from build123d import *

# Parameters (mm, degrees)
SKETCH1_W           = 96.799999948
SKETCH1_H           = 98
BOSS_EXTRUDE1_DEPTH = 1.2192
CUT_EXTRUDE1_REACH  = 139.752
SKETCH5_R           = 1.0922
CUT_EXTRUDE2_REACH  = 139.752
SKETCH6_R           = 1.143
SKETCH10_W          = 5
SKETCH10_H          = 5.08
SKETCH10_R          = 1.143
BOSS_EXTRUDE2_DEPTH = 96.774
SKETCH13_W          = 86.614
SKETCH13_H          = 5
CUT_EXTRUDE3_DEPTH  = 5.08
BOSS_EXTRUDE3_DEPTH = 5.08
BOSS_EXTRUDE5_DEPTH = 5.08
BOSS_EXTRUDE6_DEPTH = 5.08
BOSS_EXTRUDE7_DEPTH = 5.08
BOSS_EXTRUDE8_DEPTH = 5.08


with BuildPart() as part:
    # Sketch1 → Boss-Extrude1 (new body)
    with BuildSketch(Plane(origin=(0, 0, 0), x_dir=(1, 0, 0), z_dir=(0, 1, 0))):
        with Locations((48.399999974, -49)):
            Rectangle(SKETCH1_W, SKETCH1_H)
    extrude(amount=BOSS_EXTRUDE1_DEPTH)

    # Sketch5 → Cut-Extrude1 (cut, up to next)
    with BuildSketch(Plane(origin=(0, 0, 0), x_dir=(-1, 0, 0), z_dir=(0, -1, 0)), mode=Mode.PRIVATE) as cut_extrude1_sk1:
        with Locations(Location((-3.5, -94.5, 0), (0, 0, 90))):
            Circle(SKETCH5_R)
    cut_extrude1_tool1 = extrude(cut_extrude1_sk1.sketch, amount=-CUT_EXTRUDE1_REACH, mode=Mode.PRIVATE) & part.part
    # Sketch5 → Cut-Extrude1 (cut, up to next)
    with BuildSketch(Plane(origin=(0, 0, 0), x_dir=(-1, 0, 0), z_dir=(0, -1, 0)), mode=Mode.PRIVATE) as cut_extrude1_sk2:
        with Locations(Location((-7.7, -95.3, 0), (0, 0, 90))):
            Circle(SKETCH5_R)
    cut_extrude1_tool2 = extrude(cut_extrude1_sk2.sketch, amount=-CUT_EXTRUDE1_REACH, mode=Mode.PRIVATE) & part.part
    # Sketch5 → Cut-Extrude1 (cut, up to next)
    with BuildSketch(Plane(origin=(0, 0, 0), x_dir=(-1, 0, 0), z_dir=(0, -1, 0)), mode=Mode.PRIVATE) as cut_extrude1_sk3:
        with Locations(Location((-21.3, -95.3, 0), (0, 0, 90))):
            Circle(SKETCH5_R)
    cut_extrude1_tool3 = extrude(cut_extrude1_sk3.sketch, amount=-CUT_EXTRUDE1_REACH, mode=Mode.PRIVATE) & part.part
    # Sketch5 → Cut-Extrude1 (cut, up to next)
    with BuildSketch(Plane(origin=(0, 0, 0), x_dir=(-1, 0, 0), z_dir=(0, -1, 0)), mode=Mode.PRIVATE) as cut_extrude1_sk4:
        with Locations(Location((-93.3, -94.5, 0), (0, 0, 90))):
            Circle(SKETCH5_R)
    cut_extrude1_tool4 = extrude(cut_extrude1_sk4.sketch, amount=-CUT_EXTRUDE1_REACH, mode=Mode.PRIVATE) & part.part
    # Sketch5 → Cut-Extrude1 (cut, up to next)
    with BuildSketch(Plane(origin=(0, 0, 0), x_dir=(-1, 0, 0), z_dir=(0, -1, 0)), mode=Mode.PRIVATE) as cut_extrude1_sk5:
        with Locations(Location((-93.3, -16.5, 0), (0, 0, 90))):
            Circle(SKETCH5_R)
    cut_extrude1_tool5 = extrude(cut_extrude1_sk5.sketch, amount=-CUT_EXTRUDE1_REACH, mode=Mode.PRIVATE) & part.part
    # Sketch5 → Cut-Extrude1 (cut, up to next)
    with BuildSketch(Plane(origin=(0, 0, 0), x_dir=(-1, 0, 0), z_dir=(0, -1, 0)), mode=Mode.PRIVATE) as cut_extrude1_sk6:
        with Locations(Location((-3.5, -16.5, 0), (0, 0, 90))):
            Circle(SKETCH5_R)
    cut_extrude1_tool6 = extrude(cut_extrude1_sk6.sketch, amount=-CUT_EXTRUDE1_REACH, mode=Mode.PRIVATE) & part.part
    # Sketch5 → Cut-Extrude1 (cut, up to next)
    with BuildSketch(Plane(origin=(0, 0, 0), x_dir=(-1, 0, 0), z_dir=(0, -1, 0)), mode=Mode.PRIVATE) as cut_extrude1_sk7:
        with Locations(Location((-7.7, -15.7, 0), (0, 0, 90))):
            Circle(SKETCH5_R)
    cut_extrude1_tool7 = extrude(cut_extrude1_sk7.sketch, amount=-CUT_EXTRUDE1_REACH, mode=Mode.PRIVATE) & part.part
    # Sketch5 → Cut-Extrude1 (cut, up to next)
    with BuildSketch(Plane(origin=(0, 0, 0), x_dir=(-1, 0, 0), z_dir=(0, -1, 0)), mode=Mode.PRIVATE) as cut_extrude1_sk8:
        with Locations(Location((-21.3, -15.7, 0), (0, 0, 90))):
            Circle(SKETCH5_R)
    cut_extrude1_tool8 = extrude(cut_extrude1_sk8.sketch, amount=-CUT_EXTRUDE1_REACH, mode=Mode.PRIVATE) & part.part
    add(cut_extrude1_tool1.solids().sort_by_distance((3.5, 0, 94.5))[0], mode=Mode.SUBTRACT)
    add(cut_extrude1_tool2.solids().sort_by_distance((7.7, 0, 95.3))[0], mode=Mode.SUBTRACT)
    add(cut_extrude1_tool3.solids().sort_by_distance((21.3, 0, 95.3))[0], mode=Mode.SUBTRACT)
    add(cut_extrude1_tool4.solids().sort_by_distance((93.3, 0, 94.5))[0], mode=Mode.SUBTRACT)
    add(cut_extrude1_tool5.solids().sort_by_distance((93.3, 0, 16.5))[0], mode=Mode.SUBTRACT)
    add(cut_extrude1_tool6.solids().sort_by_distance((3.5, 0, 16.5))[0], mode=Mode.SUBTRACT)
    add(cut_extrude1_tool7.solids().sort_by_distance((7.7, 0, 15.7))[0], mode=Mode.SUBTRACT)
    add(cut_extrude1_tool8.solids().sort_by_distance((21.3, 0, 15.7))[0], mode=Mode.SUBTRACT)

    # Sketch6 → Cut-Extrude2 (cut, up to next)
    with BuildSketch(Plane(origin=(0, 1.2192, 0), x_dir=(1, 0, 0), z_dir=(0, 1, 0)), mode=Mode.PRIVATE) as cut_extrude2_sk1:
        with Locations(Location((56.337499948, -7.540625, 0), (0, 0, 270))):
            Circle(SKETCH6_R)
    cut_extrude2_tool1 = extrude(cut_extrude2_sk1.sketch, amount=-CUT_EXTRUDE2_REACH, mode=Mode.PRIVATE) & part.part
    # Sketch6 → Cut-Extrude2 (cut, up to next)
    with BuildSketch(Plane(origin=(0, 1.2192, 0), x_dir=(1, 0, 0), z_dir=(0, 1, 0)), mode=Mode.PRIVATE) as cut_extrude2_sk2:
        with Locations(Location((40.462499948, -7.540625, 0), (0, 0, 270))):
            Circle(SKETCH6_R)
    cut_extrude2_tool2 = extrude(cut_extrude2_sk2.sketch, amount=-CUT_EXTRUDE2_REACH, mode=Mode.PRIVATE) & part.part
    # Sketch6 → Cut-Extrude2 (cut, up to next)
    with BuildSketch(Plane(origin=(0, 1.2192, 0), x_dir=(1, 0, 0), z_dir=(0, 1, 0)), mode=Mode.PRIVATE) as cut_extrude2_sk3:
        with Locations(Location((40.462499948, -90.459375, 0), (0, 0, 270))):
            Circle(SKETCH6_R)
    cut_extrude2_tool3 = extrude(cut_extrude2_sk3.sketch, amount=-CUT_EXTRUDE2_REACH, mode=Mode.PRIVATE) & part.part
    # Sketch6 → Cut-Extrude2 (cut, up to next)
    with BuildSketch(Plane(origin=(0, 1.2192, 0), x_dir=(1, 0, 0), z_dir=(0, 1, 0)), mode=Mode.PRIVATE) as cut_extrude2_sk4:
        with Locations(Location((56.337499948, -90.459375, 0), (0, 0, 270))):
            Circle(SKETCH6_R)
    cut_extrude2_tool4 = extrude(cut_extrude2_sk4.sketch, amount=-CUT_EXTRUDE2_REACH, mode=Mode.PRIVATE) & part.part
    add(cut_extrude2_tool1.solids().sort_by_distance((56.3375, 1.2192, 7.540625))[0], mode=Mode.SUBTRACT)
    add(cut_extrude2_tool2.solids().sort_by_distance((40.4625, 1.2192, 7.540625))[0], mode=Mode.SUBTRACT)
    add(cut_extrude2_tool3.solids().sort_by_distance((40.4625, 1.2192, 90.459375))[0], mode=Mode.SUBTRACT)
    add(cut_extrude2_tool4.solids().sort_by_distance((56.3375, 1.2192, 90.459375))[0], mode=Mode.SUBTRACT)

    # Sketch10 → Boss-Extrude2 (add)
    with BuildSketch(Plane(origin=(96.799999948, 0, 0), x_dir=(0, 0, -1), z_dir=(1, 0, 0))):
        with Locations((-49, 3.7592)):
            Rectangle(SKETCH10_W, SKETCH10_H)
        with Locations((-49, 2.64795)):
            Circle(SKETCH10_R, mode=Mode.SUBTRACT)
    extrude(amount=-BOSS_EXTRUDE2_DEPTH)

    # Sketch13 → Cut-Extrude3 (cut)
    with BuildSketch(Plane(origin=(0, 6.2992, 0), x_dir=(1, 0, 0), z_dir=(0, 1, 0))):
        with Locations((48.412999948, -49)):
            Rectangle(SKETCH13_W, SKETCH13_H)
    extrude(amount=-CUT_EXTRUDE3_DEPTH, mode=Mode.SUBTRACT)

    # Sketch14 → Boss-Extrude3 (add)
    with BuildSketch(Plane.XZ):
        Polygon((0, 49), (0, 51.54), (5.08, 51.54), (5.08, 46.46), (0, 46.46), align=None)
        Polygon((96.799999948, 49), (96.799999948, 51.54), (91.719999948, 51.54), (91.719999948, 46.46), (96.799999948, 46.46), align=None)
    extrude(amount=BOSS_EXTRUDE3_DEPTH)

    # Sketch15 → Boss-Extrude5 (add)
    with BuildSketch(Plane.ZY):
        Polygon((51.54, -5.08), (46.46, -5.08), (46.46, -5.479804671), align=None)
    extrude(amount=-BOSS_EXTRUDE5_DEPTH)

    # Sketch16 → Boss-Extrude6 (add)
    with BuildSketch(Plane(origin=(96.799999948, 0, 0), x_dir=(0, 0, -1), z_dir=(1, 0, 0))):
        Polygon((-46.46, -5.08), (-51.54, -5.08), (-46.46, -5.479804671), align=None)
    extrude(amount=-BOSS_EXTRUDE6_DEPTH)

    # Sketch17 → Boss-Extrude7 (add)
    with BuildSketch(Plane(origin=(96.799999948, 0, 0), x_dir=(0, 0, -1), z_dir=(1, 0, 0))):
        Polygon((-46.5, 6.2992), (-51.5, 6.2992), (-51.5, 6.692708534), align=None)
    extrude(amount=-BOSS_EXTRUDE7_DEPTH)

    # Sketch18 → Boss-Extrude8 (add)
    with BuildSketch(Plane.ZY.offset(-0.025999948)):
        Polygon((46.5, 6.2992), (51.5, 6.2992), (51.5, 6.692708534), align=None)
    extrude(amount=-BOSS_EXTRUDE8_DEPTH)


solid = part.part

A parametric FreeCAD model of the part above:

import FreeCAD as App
import Part
import Sketcher
Q = App.Units.Quantity


def add_polygon(sketch, points):
    """Adds a closed chain of lines whose ends are joined by coincident constraints."""
    first, n = sketch.GeometryCount, len(points)
    for a, b in zip(points, points[1:] + points[:1]):
        sketch.addGeometry(Part.LineSegment(App.Vector(*a, 0), App.Vector(*b, 0)), False)
    for i in range(n):
        sketch.addConstraint(Sketcher.Constraint("Coincident", first + i, 2, first + (i + 1) % n, 1))

doc = App.newDocument("Part")
params = doc.addObject("Spreadsheet::Sheet", "Params")
for row, (alias, value) in enumerate([
    ("pad1_length", "0.048 in"),
    ("sketch2_diameter", "0.086 in"),
    ("sketch3_diameter", "0.086 in"),
    ("sketch4_diameter", "0.086 in"),
    ("sketch5_diameter", "0.086 in"),
    ("sketch6_diameter", "0.086 in"),
    ("sketch7_diameter", "0.086 in"),
    ("sketch8_diameter", "0.086 in"),
    ("sketch9_diameter", "0.086 in"),
    ("sketch10_diameter", "0.09 in"),
    ("sketch11_diameter", "0.09 in"),
    ("sketch12_diameter", "0.09 in"),
    ("sketch13_diameter", "0.09 in"),
    ("sketch14_diameter", "0.09 in"),
    ("sketch14_width", "0.2 in"),
    ("pad2_length", "3.81 in"),
    ("sketch15_width", "3.41 in"),
    ("pocket13_length", "0.2 in"),
    ("sketch16_width", "0.2 in"),
    ("pad3_length", "0.2 in"),
    ("sketch17_height", "0.2 in"),
    ("pad4_length", "0.2 in"),
    ("sketch18_height", "0.2 in"),
    ("pad5_length", "0.2 in"),
    ("pad6_length", "0.2 in"),
    ("pad7_length", "0.2 in"),
], start=1):
    params.set(f"A{row}", alias)
    params.set(f"B{row}", "=" + value)
    params.setAlias(f"B{row}", alias)

body = doc.addObject("PartDesign::Body", "Body")

# Sketch on XZ plane
sketch1 = body.newObject("Sketcher::SketchObject", "Sketch")
sketch1.AttachmentSupport = (doc.getObject("XZ_Plane"), [""])
sketch1.MapMode = "FlatFace"
add_polygon(sketch1, [(0, 0), (0, 98), (96.8, 98), (96.8, 0)])  # lines 0-3
sketch1.addConstraint(Sketcher.Constraint("Vertical", 0))
sketch1.addConstraint(Sketcher.Constraint("Horizontal", 1))
sketch1.addConstraint(Sketcher.Constraint("Vertical", 2))
sketch1.addConstraint(Sketcher.Constraint("Horizontal", 3))
sketch1.addConstraint(Sketcher.Constraint("Coincident", 3, 2, -1, 1))
sketch1.addConstraint(Sketcher.Constraint("DistanceX", 1, 1, 1, 2, Q("96.8 mm")))
sketch1.addConstraint(Sketcher.Constraint("DistanceY", 0, 1, 0, 2, Q("98 mm")))
pad1 = body.newObject("PartDesign::Pad", "Pad")
pad1.Profile = sketch1
pad1.setExpression("Length", "Params.pad1_length")
pad1.Reversed = True

# Sketch on XZ plane
sketch2 = body.newObject("Sketcher::SketchObject", "Sketch001")
sketch2.AttachmentSupport = (doc.getObject("XZ_Plane"), [""])
sketch2.MapMode = "FlatFace"
sketch2.addGeometry(Part.Circle(App.Vector(3.5, 94.5, 0), App.Vector(0, 0, 1), 1.0922), False)
sketch2.addConstraint(Sketcher.Constraint("Diameter", 0, Q("0.086 in")))
sketch2.addConstraint(Sketcher.Constraint("DistanceX", -1, 1, 0, 3, Q("3.5 mm")))
sketch2.addConstraint(Sketcher.Constraint("DistanceY", -1, 1, 0, 3, Q("94.5 mm")))
sketch2.setExpression("Constraints[0]", "Params.sketch2_diameter")
pocket1 = body.newObject("PartDesign::Pocket", "Pocket")
pocket1.Profile = sketch2
pocket1.Type = "UpToFirst"

# Sketch on XZ plane
sketch3 = body.newObject("Sketcher::SketchObject", "Sketch002")
sketch3.AttachmentSupport = (doc.getObject("XZ_Plane"), [""])
sketch3.MapMode = "FlatFace"
sketch3.addGeometry(Part.Circle(App.Vector(7.7, 95.3, 0), App.Vector(0, 0, 1), 1.0922), False)
sketch3.addConstraint(Sketcher.Constraint("Diameter", 0, Q("0.086 in")))
sketch3.addConstraint(Sketcher.Constraint("DistanceX", -1, 1, 0, 3, Q("7.7 mm")))
sketch3.addConstraint(Sketcher.Constraint("DistanceY", -1, 1, 0, 3, Q("95.3 mm")))
sketch3.setExpression("Constraints[0]", "Params.sketch3_diameter")
pocket2 = body.newObject("PartDesign::Pocket", "Pocket001")
pocket2.Profile = sketch3
pocket2.Type = "UpToFirst"

# Sketch on XZ plane
sketch4 = body.newObject("Sketcher::SketchObject", "Sketch003")
sketch4.AttachmentSupport = (doc.getObject("XZ_Plane"), [""])
sketch4.MapMode = "FlatFace"
sketch4.addGeometry(Part.Circle(App.Vector(21.3, 95.3, 0), App.Vector(0, 0, 1), 1.0922), False)
sketch4.addConstraint(Sketcher.Constraint("Diameter", 0, Q("0.086 in")))
sketch4.addConstraint(Sketcher.Constraint("DistanceX", -1, 1, 0, 3, Q("21.3 mm")))
sketch4.addConstraint(Sketcher.Constraint("DistanceY", -1, 1, 0, 3, Q("95.3 mm")))
sketch4.setExpression("Constraints[0]", "Params.sketch4_diameter")
pocket3 = body.newObject("PartDesign::Pocket", "Pocket002")
pocket3.Profile = sketch4
pocket3.Type = "UpToFirst"

# Sketch on XZ plane
sketch5 = body.newObject("Sketcher::SketchObject", "Sketch004")
sketch5.AttachmentSupport = (doc.getObject("XZ_Plane"), [""])
sketch5.MapMode = "FlatFace"
sketch5.addGeometry(Part.Circle(App.Vector(93.3, 94.5, 0), App.Vector(0, 0, 1), 1.0922), False)
sketch5.addConstraint(Sketcher.Constraint("Diameter", 0, Q("0.086 in")))
sketch5.addConstraint(Sketcher.Constraint("DistanceX", -1, 1, 0, 3, Q("93.3 mm")))
sketch5.addConstraint(Sketcher.Constraint("DistanceY", -1, 1, 0, 3, Q("94.5 mm")))
sketch5.setExpression("Constraints[0]", "Params.sketch5_diameter")
pocket4 = body.newObject("PartDesign::Pocket", "Pocket003")
pocket4.Profile = sketch5
pocket4.Type = "UpToFirst"

# Sketch on XZ plane
sketch6 = body.newObject("Sketcher::SketchObject", "Sketch005")
sketch6.AttachmentSupport = (doc.getObject("XZ_Plane"), [""])
sketch6.MapMode = "FlatFace"
sketch6.addGeometry(Part.Circle(App.Vector(93.3, 16.5, 0), App.Vector(0, 0, 1), 1.0922), False)
sketch6.addConstraint(Sketcher.Constraint("Diameter", 0, Q("0.086 in")))
sketch6.addConstraint(Sketcher.Constraint("DistanceX", -1, 1, 0, 3, Q("93.3 mm")))
sketch6.addConstraint(Sketcher.Constraint("DistanceY", -1, 1, 0, 3, Q("16.5 mm")))
sketch6.setExpression("Constraints[0]", "Params.sketch6_diameter")
pocket5 = body.newObject("PartDesign::Pocket", "Pocket004")
pocket5.Profile = sketch6
pocket5.Type = "UpToFirst"

# Sketch on XZ plane
sketch7 = body.newObject("Sketcher::SketchObject", "Sketch006")
sketch7.AttachmentSupport = (doc.getObject("XZ_Plane"), [""])
sketch7.MapMode = "FlatFace"
sketch7.addGeometry(Part.Circle(App.Vector(3.5, 16.5, 0), App.Vector(0, 0, 1), 1.0922), False)
sketch7.addConstraint(Sketcher.Constraint("Diameter", 0, Q("0.086 in")))
sketch7.addConstraint(Sketcher.Constraint("DistanceX", -1, 1, 0, 3, Q("3.5 mm")))
sketch7.addConstraint(Sketcher.Constraint("DistanceY", -1, 1, 0, 3, Q("16.5 mm")))
sketch7.setExpression("Constraints[0]", "Params.sketch7_diameter")
pocket6 = body.newObject("PartDesign::Pocket", "Pocket005")
pocket6.Profile = sketch7
pocket6.Type = "UpToFirst"

# Sketch on XZ plane
sketch8 = body.newObject("Sketcher::SketchObject", "Sketch007")
sketch8.AttachmentSupport = (doc.getObject("XZ_Plane"), [""])
sketch8.MapMode = "FlatFace"
sketch8.addGeometry(Part.Circle(App.Vector(7.7, 15.7, 0), App.Vector(0, 0, 1), 1.0922), False)
sketch8.addConstraint(Sketcher.Constraint("Diameter", 0, Q("0.086 in")))
sketch8.addConstraint(Sketcher.Constraint("DistanceX", -1, 1, 0, 3, Q("7.7 mm")))
sketch8.addConstraint(Sketcher.Constraint("DistanceY", -1, 1, 0, 3, Q("15.7 mm")))
sketch8.setExpression("Constraints[0]", "Params.sketch8_diameter")
pocket7 = body.newObject("PartDesign::Pocket", "Pocket006")
pocket7.Profile = sketch8
pocket7.Type = "UpToFirst"

# Sketch on XZ plane
sketch9 = body.newObject("Sketcher::SketchObject", "Sketch008")
sketch9.AttachmentSupport = (doc.getObject("XZ_Plane"), [""])
sketch9.MapMode = "FlatFace"
sketch9.addGeometry(Part.Circle(App.Vector(21.3, 15.7, 0), App.Vector(0, 0, 1), 1.0922), False)
sketch9.addConstraint(Sketcher.Constraint("Diameter", 0, Q("0.086 in")))
sketch9.addConstraint(Sketcher.Constraint("DistanceX", -1, 1, 0, 3, Q("21.3 mm")))
sketch9.addConstraint(Sketcher.Constraint("DistanceY", -1, 1, 0, 3, Q("15.7 mm")))
sketch9.setExpression("Constraints[0]", "Params.sketch9_diameter")
pocket8 = body.newObject("PartDesign::Pocket", "Pocket007")
pocket8.Profile = sketch9
pocket8.Type = "UpToFirst"

# Sketch on XZ plane
sketch10 = body.newObject("Sketcher::SketchObject", "Sketch009")
sketch10.AttachmentSupport = (doc.getObject("XZ_Plane"), [""])
sketch10.MapMode = "FlatFace"
sketch10.AttachmentOffset = App.Placement(App.Vector(0, 0, -0.048 * 25.4), App.Rotation())
sketch10.addGeometry(Part.Circle(App.Vector(56.3375, 7.540625, 0), App.Vector(0, 0, 1), 1.143), False)
sketch10.addConstraint(Sketcher.Constraint("Diameter", 0, Q("0.09 in")))
sketch10.addConstraint(Sketcher.Constraint("DistanceY", -1, 1, 0, 3, Q("0.296875 in")))
sketch10.addConstraint(Sketcher.Constraint("DistanceX", -1, 1, 0, 3, Q("56.3375 mm")))
sketch10.setExpression("Constraints[0]", "Params.sketch10_diameter")
pocket9 = body.newObject("PartDesign::Pocket", "Pocket008")
pocket9.Profile = sketch10
pocket9.Type = "UpToFirst"
pocket9.Reversed = True

# Sketch on XZ plane
sketch11 = body.newObject("Sketcher::SketchObject", "Sketch010")
sketch11.AttachmentSupport = (doc.getObject("XZ_Plane"), [""])
sketch11.MapMode = "FlatFace"
sketch11.AttachmentOffset = App.Placement(App.Vector(0, 0, -0.048 * 25.4), App.Rotation())
sketch11.addGeometry(Part.Circle(App.Vector(40.4625, 7.540625, 0), App.Vector(0, 0, 1), 1.143), False)
sketch11.addConstraint(Sketcher.Constraint("Diameter", 0, Q("0.09 in")))
sketch11.addConstraint(Sketcher.Constraint("DistanceY", -1, 1, 0, 3, Q("0.296875 in")))
sketch11.addConstraint(Sketcher.Constraint("DistanceX", -1, 1, 0, 3, Q("40.4625 mm")))
sketch11.setExpression("Constraints[0]", "Params.sketch11_diameter")
pocket10 = body.newObject("PartDesign::Pocket", "Pocket009")
pocket10.Profile = sketch11
pocket10.Type = "UpToFirst"
pocket10.Reversed = True

# Sketch on XZ plane
sketch12 = body.newObject("Sketcher::SketchObject", "Sketch011")
sketch12.AttachmentSupport = (doc.getObject("XZ_Plane"), [""])
sketch12.MapMode = "FlatFace"
sketch12.AttachmentOffset = App.Placement(App.Vector(0, 0, -0.048 * 25.4), App.Rotation())
sketch12.addGeometry(Part.Circle(App.Vector(40.4625, 90.459375, 0), App.Vector(0, 0, 1), 1.143), False)
sketch12.addConstraint(Sketcher.Constraint("Diameter", 0, Q("0.09 in")))
sketch12.addConstraint(Sketcher.Constraint("DistanceX", -1, 1, 0, 3, Q("40.4625 mm")))
sketch12.addConstraint(Sketcher.Constraint("DistanceY", -1, 1, 0, 3, Q("90.459375 mm")))
sketch12.setExpression("Constraints[0]", "Params.sketch12_diameter")
pocket11 = body.newObject("PartDesign::Pocket", "Pocket010")
pocket11.Profile = sketch12
pocket11.Type = "UpToFirst"
pocket11.Reversed = True

# Sketch on XZ plane
sketch13 = body.newObject("Sketcher::SketchObject", "Sketch012")
sketch13.AttachmentSupport = (doc.getObject("XZ_Plane"), [""])
sketch13.MapMode = "FlatFace"
sketch13.AttachmentOffset = App.Placement(App.Vector(0, 0, -0.048 * 25.4), App.Rotation())
sketch13.addGeometry(Part.Circle(App.Vector(56.3375, 90.459375, 0), App.Vector(0, 0, 1), 1.143), False)
sketch13.addConstraint(Sketcher.Constraint("Diameter", 0, Q("0.09 in")))
sketch13.addConstraint(Sketcher.Constraint("DistanceX", -1, 1, 0, 3, Q("56.3375 mm")))
sketch13.addConstraint(Sketcher.Constraint("DistanceY", -1, 1, 0, 3, Q("90.459375 mm")))
sketch13.setExpression("Constraints[0]", "Params.sketch13_diameter")
pocket12 = body.newObject("PartDesign::Pocket", "Pocket011")
pocket12.Profile = sketch13
pocket12.Type = "UpToFirst"
pocket12.Reversed = True

# Sketch on YZ plane
sketch14 = body.newObject("Sketcher::SketchObject", "Sketch013")
sketch14.AttachmentSupport = (doc.getObject("YZ_Plane"), [""])
sketch14.MapMode = "FlatFace"
sketch14.AttachmentOffset = App.Placement(App.Vector(0, 0, 96.8), App.Rotation())
add_polygon(sketch14, [(6.2992, 51.5), (1.2192, 51.5), (1.2192, 46.5), (6.2992, 46.5)])  # lines 0-3
sketch14.addGeometry(Part.Circle(App.Vector(2.64795, 49, 0), App.Vector(0, 0, 1), 1.143), False)  # 4
sketch14.addConstraint(Sketcher.Constraint("Horizontal", 0))
sketch14.addConstraint(Sketcher.Constraint("Vertical", 1))
sketch14.addConstraint(Sketcher.Constraint("Horizontal", 2))
sketch14.addConstraint(Sketcher.Constraint("Vertical", 3))
sketch14.addConstraint(Sketcher.Constraint("Diameter", 4, Q("0.09 in")))
sketch14.addConstraint(Sketcher.Constraint("DistanceX", 0, 2, 0, 1, Q("0.2 in")))
sketch14.addConstraint(Sketcher.Constraint("DistanceX", -1, 1, 0, 2, Q("0.048 in")))
sketch14.addConstraint(Sketcher.Constraint("DistanceY", 1, 2, 1, 1, Q("5 mm")))
sketch14.addConstraint(Sketcher.Constraint("DistanceY", -1, 1, 4, 3, Q("49 mm")))
sketch14.addConstraint(Sketcher.Constraint("DistanceY", -1, 1, 0, 2, Q("51.5 mm")))
sketch14.addConstraint(Sketcher.Constraint("DistanceX", -1, 1, 4, 3, Q("2.64795 mm")))
sketch14.setExpression("Constraints[8]", "Params.sketch14_diameter")
sketch14.setExpression("Constraints[9]", "Params.sketch14_width")
pad2 = body.newObject("PartDesign::Pad", "Pad001")
pad2.Profile = sketch14
pad2.setExpression("Length", "Params.pad2_length")
pad2.Reversed = True

# Sketch on XZ plane
sketch15 = body.newObject("Sketcher::SketchObject", "Sketch014")
sketch15.AttachmentSupport = (doc.getObject("XZ_Plane"), [""])
sketch15.MapMode = "FlatFace"
sketch15.AttachmentOffset = App.Placement(App.Vector(0, 0, -0.248 * 25.4), App.Rotation())
add_polygon(sketch15, [(5.106, 46.5), (5.106, 51.5), (91.72, 51.5), (91.72, 46.5)])  # lines 0-3
sketch15.addConstraint(Sketcher.Constraint("Vertical", 0))
sketch15.addConstraint(Sketcher.Constraint("Horizontal", 1))
sketch15.addConstraint(Sketcher.Constraint("Vertical", 2))
sketch15.addConstraint(Sketcher.Constraint("Horizontal", 3))
sketch15.addConstraint(Sketcher.Constraint("DistanceX", 1, 1, 1, 2, Q("3.41 in")))
sketch15.addConstraint(Sketcher.Constraint("DistanceY", 0, 1, 0, 2, Q("5 mm")))
sketch15.addConstraint(Sketcher.Constraint("DistanceX", -1, 1, 0, 2, Q("5.106 mm")))
sketch15.addConstraint(Sketcher.Constraint("DistanceY", -1, 1, 0, 2, Q("51.5 mm")))
sketch15.setExpression("Constraints[8]", "Params.sketch15_width")
pocket13 = body.newObject("PartDesign::Pocket", "Pocket012")
pocket13.Profile = sketch15
pocket13.setExpression("Length", "Params.pocket13_length")
pocket13.Reversed = True

# Sketch on XZ plane
sketch16 = body.newObject("Sketcher::SketchObject", "Sketch015")
sketch16.AttachmentSupport = (doc.getObject("XZ_Plane"), [""])
sketch16.MapMode = "FlatFace"
add_polygon(sketch16, [(0, 51.54), (0, 46.46), (5.08, 46.46), (5.08, 51.54)])  # lines 0-3
add_polygon(sketch16, [(96.8, 51.54), (91.72, 51.54), (91.72, 46.46), (96.8, 46.46)])  # lines 4-7
sketch16.addConstraint(Sketcher.Constraint("Vertical", 0))
sketch16.addConstraint(Sketcher.Constraint("Horizontal", 1))
sketch16.addConstraint(Sketcher.Constraint("Vertical", 2))
sketch16.addConstraint(Sketcher.Constraint("Horizontal", 3))
sketch16.addConstraint(Sketcher.Constraint("Horizontal", 4))
sketch16.addConstraint(Sketcher.Constraint("Vertical", 5))
sketch16.addConstraint(Sketcher.Constraint("Horizontal", 6))
sketch16.addConstraint(Sketcher.Constraint("Vertical", 7))
sketch16.addConstraint(Sketcher.Constraint("PointOnObject", 0, 2, -2))
sketch16.addConstraint(Sketcher.Constraint("Horizontal", 3, 2, 4, 2))
sketch16.addConstraint(Sketcher.Constraint("Horizontal", 1, 2, 5, 2))
sketch16.addConstraint(Sketcher.Constraint("Equal", 3, 4))
sketch16.addConstraint(Sketcher.Constraint("Equal", 6, 0))
sketch16.addConstraint(Sketcher.Constraint("DistanceX", 1, 1, 1, 2, Q("0.2 in")))
sketch16.addConstraint(Sketcher.Constraint("DistanceY", -1, 1, 0, 2, Q("46.46 mm")))
sketch16.addConstraint(Sketcher.Constraint("DistanceX", -1, 1, 4, 2, Q("91.72 mm")))
sketch16.setExpression("Constraints[21]", "Params.sketch16_width")
pad3 = body.newObject("PartDesign::Pad", "Pad002")
pad3.Profile = sketch16
pad3.setExpression("Length", "Params.pad3_length")

# Sketch on YZ plane
sketch17 = body.newObject("Sketcher::SketchObject", "Sketch016")
sketch17.AttachmentSupport = (doc.getObject("YZ_Plane"), [""])
sketch17.MapMode = "FlatFace"
add_polygon(sketch17, [(-5.08, 51.54), (-5.08, 46.46), (-5.479805, 46.46)])  # lines 0-2
sketch17.addConstraint(Sketcher.Constraint("Vertical", 0))
sketch17.addConstraint(Sketcher.Constraint("Horizontal", 1))
sketch17.addConstraint(Sketcher.Constraint("DistanceY", 0, 2, 0, 1, Q("0.2 in")))
sketch17.addConstraint(Sketcher.Constraint("DistanceX", 0, 2, -1, 1, Q("0.2 in")))
sketch17.addConstraint(Sketcher.Constraint("Angle", 2, Q("85.5 deg")))
sketch17.addConstraint(Sketcher.Constraint("DistanceY", -1, 1, 0, 2, Q("46.46 mm")))
sketch17.setExpression("Constraints[5]", "Params.sketch17_height")
pad4 = body.newObject("PartDesign::Pad", "Pad003")
pad4.Profile = sketch17
pad4.setExpression("Length", "Params.pad4_length")

# Sketch on YZ plane
sketch18 = body.newObject("Sketcher::SketchObject", "Sketch017")
sketch18.AttachmentSupport = (doc.getObject("YZ_Plane"), [""])
sketch18.MapMode = "FlatFace"
sketch18.AttachmentOffset = App.Placement(App.Vector(0, 0, 96.8), App.Rotation())
add_polygon(sketch18, [(-5.08, 46.46), (-5.08, 51.54), (-5.479805, 46.46)])  # lines 0-2
sketch18.addConstraint(Sketcher.Constraint("Vertical", 0))
sketch18.addConstraint(Sketcher.Constraint("Horizontal", 2))
sketch18.addConstraint(Sketcher.Constraint("DistanceY", 0, 1, 0, 2, Q("0.2 in")))
sketch18.addConstraint(Sketcher.Constraint("DistanceX", 0, 2, -1, 1, Q("0.2 in")))
sketch18.addConstraint(Sketcher.Constraint("Angle", 1, Q("-94.5 deg")))
sketch18.addConstraint(Sketcher.Constraint("DistanceY", -1, 1, 0, 2, Q("51.54 mm")))
sketch18.setExpression("Constraints[5]", "Params.sketch18_height")
pad5 = body.newObject("PartDesign::Pad", "Pad004")
pad5.Profile = sketch18
pad5.setExpression("Length", "Params.pad5_length")
pad5.Reversed = True

# Sketch on YZ plane
sketch19 = body.newObject("Sketcher::SketchObject", "Sketch018")
sketch19.AttachmentSupport = (doc.getObject("YZ_Plane"), [""])
sketch19.MapMode = "FlatFace"
sketch19.AttachmentOffset = App.Placement(App.Vector(0, 0, 96.8), App.Rotation())
add_polygon(sketch19, [(6.2992, 51.5), (6.2992, 46.5), (6.692709, 51.5)])  # lines 0-2
sketch19.addConstraint(Sketcher.Constraint("Vertical", 0))
sketch19.addConstraint(Sketcher.Constraint("Horizontal", 2))
sketch19.addConstraint(Sketcher.Constraint("Angle", 1, Q("85.5 deg")))
sketch19.addConstraint(Sketcher.Constraint("DistanceX", -1, 1, 0, 2, Q("0.248 in")))
sketch19.addConstraint(Sketcher.Constraint("DistanceY", 0, 2, 0, 1, Q("5 mm")))
sketch19.addConstraint(Sketcher.Constraint("DistanceY", -1, 1, 0, 2, Q("46.5 mm")))
pad6 = body.newObject("PartDesign::Pad", "Pad005")
pad6.Profile = sketch19
pad6.setExpression("Length", "Params.pad6_length")
pad6.Reversed = True

# Sketch on YZ plane
sketch20 = body.newObject("Sketcher::SketchObject", "Sketch019")
sketch20.AttachmentSupport = (doc.getObject("YZ_Plane"), [""])
sketch20.MapMode = "FlatFace"
sketch20.AttachmentOffset = App.Placement(App.Vector(0, 0, 0.026), App.Rotation())
add_polygon(sketch20, [(6.2992, 46.5), (6.2992, 51.5), (6.692709, 51.5)])  # lines 0-2
sketch20.addConstraint(Sketcher.Constraint("Vertical", 0))
sketch20.addConstraint(Sketcher.Constraint("Horizontal", 1))
sketch20.addConstraint(Sketcher.Constraint("Angle", 2, Q("-94.5 deg")))
sketch20.addConstraint(Sketcher.Constraint("DistanceX", -1, 1, 0, 2, Q("0.248 in")))
sketch20.addConstraint(Sketcher.Constraint("DistanceY", 0, 1, 0, 2, Q("5 mm")))
sketch20.addConstraint(Sketcher.Constraint("DistanceY", -1, 1, 0, 2, Q("51.5 mm")))
pad7 = body.newObject("PartDesign::Pad", "Pad006")
pad7.Profile = sketch20
pad7.setExpression("Length", "Params.pad7_length")

doc.recompute()
